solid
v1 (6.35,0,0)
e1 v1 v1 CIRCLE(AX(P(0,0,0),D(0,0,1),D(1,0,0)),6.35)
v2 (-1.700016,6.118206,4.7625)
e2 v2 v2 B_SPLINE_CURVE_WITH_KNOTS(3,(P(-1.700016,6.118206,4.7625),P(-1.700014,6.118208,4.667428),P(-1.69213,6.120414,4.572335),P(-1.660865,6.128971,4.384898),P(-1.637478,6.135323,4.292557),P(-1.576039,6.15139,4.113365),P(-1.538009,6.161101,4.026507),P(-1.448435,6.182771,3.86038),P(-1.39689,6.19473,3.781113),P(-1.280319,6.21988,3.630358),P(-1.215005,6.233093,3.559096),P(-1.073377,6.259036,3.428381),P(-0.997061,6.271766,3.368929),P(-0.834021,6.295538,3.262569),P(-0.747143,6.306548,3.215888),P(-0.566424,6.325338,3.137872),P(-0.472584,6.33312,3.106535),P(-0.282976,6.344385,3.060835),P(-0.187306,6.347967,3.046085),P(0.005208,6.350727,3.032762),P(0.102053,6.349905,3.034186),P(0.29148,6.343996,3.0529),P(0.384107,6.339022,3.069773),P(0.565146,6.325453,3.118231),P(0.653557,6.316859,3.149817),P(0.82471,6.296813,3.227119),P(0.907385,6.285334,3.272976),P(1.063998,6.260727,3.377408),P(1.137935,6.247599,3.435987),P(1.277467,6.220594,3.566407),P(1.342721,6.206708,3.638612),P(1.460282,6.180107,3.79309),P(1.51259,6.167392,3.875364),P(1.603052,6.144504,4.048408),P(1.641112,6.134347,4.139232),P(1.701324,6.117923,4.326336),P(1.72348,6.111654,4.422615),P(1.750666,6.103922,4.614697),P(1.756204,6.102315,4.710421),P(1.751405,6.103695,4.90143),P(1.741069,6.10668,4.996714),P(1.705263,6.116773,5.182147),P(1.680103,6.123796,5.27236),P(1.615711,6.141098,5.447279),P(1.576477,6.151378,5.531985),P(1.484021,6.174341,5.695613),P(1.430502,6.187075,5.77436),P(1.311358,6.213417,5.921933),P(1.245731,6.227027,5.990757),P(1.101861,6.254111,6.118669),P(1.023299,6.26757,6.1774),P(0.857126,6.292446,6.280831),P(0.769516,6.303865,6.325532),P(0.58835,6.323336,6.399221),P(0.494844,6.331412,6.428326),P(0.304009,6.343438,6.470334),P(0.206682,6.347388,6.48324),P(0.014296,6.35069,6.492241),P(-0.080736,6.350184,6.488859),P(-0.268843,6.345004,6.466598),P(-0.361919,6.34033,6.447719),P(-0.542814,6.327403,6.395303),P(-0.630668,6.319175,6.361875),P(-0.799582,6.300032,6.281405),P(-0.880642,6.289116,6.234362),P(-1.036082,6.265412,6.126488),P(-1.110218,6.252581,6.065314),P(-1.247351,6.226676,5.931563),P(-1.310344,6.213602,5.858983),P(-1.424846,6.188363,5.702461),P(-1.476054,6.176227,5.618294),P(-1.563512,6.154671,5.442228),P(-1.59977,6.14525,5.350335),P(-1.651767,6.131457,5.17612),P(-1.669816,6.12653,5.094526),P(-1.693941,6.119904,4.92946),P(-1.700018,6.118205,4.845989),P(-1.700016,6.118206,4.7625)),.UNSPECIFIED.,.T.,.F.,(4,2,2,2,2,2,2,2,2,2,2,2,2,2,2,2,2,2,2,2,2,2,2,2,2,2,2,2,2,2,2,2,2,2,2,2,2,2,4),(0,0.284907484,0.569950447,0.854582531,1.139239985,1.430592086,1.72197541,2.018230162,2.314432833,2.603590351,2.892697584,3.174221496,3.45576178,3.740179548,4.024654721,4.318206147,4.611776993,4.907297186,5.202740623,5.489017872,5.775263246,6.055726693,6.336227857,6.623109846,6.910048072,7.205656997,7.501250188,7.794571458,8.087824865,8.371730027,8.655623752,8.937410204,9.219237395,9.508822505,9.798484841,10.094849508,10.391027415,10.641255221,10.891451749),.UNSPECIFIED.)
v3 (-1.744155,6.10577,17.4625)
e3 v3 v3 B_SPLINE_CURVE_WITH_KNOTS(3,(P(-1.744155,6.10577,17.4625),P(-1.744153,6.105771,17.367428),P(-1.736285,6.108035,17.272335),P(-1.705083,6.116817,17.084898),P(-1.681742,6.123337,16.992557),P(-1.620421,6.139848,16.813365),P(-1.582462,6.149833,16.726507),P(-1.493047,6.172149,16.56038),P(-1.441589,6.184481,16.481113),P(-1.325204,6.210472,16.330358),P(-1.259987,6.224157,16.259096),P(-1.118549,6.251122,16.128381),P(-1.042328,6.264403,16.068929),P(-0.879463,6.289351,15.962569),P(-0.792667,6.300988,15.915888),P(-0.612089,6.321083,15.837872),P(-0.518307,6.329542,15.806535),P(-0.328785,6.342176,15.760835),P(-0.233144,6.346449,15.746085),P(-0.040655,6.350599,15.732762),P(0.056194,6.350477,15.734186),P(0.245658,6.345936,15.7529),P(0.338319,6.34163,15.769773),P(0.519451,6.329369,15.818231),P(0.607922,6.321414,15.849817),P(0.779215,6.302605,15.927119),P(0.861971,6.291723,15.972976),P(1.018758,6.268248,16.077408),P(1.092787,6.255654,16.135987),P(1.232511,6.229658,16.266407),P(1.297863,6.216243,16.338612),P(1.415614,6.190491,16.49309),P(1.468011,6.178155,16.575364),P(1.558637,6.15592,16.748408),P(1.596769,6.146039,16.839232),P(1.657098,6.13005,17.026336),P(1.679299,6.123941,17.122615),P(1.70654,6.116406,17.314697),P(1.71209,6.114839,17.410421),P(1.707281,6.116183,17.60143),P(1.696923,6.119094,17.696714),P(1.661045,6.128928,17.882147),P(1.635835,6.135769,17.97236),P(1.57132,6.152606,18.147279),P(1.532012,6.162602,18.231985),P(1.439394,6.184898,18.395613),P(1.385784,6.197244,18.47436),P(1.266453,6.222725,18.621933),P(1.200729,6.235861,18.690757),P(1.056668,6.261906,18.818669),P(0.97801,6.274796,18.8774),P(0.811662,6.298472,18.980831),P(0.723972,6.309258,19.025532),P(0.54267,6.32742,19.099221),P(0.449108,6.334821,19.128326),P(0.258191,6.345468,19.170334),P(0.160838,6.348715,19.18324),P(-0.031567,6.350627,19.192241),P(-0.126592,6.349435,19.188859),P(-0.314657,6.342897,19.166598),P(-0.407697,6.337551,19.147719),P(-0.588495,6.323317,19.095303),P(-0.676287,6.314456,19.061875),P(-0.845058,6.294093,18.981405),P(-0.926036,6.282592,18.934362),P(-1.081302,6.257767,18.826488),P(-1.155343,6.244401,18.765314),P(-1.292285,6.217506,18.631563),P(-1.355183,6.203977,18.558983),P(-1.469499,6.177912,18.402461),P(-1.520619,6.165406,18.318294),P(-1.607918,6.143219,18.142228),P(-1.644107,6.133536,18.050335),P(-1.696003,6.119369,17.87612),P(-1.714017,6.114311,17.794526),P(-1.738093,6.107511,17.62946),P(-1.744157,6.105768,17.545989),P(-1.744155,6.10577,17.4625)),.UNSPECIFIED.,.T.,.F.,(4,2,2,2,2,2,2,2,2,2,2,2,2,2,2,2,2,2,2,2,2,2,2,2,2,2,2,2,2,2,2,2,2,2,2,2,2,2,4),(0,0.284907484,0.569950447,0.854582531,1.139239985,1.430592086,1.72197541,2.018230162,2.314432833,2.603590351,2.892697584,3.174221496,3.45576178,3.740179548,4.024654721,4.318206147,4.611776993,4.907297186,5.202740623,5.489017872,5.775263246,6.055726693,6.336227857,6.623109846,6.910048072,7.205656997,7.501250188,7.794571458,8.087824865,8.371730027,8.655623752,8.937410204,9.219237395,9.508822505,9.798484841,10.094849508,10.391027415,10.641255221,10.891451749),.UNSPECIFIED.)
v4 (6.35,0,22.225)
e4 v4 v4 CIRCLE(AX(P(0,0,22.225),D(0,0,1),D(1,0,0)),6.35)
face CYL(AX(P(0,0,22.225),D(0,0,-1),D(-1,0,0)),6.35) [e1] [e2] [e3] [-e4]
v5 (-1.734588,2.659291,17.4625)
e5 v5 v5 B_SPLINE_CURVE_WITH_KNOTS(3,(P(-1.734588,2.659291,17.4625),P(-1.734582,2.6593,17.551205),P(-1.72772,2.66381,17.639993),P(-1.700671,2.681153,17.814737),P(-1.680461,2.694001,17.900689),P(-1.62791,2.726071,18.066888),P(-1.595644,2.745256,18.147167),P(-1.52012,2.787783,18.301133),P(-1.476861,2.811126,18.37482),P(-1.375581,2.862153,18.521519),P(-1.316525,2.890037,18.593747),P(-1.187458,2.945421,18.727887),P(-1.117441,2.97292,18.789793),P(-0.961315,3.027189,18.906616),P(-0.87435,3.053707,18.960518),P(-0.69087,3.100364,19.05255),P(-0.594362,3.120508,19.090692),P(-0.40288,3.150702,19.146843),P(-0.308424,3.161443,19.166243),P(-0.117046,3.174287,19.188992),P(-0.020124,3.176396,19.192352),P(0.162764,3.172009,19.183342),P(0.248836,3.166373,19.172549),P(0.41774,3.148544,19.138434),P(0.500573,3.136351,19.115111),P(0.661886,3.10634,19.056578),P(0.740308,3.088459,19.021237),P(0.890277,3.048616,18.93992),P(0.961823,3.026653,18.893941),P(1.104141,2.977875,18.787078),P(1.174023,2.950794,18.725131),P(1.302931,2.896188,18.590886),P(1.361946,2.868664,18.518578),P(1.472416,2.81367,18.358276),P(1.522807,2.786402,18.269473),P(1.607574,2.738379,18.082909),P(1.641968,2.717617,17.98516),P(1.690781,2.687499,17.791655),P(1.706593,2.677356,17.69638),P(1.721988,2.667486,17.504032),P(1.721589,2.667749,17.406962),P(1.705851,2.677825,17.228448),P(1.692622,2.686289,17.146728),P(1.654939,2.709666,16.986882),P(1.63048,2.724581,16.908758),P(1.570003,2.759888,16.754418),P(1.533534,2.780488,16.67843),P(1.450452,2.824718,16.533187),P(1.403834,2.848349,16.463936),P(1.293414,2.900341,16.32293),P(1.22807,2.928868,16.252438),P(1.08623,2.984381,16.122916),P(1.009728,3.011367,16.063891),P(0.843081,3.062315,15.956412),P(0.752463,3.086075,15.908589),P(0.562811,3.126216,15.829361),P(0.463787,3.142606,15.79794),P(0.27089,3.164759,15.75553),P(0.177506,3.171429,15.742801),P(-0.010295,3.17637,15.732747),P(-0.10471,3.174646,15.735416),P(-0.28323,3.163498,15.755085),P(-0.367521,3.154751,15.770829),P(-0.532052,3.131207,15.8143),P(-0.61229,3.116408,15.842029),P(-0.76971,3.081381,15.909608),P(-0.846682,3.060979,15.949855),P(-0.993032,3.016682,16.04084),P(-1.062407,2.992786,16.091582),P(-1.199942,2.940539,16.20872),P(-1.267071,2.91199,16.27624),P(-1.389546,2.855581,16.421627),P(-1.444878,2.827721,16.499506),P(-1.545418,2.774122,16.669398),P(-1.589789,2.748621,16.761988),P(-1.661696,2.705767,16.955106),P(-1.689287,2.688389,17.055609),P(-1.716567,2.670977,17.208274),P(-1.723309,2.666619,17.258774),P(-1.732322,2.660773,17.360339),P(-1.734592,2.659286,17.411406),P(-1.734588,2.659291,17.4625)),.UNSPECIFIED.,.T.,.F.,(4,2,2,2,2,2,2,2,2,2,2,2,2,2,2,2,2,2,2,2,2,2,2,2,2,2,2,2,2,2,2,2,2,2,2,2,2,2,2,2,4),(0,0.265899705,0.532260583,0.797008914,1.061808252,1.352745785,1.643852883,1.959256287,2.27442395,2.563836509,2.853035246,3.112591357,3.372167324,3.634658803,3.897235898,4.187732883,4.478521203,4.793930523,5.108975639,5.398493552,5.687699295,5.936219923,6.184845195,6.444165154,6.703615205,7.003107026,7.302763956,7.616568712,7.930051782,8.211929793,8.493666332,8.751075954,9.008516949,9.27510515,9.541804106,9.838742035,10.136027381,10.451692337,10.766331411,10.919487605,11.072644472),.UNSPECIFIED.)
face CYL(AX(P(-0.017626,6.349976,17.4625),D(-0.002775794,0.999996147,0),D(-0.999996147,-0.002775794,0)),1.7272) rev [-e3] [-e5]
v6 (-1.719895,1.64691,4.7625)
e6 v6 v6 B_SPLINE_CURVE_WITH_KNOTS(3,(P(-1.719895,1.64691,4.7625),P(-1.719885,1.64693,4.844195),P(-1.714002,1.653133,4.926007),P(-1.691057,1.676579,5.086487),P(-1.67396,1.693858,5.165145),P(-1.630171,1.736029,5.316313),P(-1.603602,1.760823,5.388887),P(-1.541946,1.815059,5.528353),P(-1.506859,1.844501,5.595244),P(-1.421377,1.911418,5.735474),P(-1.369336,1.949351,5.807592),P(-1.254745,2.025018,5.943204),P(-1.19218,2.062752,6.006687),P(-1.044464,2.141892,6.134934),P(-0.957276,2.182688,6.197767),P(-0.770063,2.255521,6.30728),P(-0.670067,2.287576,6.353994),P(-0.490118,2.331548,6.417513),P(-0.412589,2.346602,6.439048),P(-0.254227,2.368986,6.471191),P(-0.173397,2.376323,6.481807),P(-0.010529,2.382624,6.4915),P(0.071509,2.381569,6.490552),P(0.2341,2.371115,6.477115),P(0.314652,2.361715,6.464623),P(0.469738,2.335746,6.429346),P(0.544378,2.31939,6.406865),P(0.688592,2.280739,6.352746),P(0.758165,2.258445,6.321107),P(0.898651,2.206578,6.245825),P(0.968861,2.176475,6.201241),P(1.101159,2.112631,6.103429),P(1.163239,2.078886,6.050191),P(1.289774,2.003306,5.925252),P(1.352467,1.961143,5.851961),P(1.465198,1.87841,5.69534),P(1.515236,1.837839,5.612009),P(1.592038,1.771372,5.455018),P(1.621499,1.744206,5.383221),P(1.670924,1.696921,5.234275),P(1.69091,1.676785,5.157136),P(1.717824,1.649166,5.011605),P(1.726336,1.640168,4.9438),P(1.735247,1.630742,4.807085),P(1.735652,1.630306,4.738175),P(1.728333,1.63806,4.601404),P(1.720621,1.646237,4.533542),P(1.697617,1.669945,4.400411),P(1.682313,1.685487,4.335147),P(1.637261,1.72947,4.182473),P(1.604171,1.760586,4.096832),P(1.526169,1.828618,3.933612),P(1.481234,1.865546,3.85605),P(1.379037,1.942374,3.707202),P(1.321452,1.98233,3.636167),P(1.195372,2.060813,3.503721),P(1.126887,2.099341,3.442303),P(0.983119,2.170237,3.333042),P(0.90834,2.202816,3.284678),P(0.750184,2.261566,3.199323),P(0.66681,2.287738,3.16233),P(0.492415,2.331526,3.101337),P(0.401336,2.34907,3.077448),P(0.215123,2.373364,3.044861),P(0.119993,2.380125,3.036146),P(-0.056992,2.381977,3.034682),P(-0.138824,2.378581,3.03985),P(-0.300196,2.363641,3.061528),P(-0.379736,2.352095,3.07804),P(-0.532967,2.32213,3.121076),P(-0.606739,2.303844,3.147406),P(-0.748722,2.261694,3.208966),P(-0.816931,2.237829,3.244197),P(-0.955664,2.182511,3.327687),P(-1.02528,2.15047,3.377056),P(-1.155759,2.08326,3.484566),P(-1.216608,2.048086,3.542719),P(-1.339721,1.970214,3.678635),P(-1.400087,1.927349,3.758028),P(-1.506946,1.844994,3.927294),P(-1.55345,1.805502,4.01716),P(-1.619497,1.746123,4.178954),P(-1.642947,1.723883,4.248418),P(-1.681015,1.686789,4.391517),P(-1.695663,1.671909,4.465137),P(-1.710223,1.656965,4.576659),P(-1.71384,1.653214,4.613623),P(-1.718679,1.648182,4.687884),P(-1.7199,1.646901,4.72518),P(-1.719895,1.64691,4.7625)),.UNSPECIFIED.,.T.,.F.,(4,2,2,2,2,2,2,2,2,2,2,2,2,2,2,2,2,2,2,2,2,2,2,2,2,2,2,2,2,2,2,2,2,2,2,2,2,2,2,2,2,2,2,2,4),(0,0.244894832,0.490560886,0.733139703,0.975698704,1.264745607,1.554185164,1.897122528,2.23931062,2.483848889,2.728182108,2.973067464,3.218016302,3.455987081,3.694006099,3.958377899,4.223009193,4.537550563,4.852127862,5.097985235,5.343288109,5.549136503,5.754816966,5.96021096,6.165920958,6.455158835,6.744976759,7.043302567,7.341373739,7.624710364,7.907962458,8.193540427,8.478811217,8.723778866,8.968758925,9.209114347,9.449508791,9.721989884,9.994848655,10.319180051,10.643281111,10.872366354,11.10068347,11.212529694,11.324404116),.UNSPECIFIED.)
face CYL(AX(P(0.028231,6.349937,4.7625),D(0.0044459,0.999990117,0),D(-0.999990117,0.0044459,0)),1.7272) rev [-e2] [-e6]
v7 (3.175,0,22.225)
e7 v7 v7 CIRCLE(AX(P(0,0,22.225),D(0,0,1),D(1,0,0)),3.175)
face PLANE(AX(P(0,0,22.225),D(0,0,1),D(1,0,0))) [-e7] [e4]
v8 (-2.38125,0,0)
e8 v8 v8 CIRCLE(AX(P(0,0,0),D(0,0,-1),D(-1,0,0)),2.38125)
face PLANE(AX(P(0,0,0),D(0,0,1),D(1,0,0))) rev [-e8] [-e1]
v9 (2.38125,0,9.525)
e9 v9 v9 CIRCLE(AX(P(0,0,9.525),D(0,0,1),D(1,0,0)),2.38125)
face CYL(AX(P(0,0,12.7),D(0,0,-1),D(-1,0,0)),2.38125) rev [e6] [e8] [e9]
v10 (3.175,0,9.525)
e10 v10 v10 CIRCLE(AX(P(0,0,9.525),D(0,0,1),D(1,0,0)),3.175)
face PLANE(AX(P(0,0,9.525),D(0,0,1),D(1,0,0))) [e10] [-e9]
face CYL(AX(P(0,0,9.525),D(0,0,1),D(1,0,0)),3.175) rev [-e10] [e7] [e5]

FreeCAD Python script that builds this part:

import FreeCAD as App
import Part
import Sketcher
Q = App.Units.Quantity

doc = App.newDocument("Part")
body = doc.addObject("PartDesign::Body", "Body")

sketch1 = doc.addObject("Sketcher::SketchObject", "Sketch")
body.addObject(sketch1)
sketch1.AttachmentSupport = (doc.XY_Plane, [""])
sketch1.MapMode = "FlatFace"
sketch1.addGeometry(Part.Circle(App.Vector(0, 0, 0), App.Vector(0, 0, 1), 6.35), False)
sketch1.addConstraint([
    Sketcher.Constraint("Coincident", 0, 3, -1, 1),
    Sketcher.Constraint("Diameter", 0, Q("0.5 in")),
])
pad1 = doc.addObject("PartDesign::Pad", "Pad")
body.addObject(pad1)
pad1.Profile = sketch1
pad1.Length = Q("0.875 in")

sketch2 = doc.addObject("Sketcher::SketchObject", "Sketch001")
body.addObject(sketch2)
sketch2.AttachmentSupport = (doc.XY_Plane, [""])
sketch2.MapMode = "FlatFace"
sketch2.AttachmentOffset = App.Placement(App.Vector(0, 0, 0.875 * 25.4), App.Rotation())
sketch2.addGeometry(Part.Circle(App.Vector(0, 0, 0), App.Vector(0, 0, 1), 3.175), False)
sketch2.addConstraint([
    Sketcher.Constraint("Coincident", 0, 3, -1, 1),
    Sketcher.Constraint("Diameter", 0, Q("0.25 in")),
])
pocket1 = doc.addObject("PartDesign::Pocket", "Pocket")
body.addObject(pocket1)
pocket1.Profile = sketch2
pocket1.Length = Q("0.5 in")

sketch3 = doc.addObject("Sketcher::SketchObject", "Sketch002")
body.addObject(sketch3)
sketch3.AttachmentSupport = (doc.XY_Plane, [""])
sketch3.MapMode = "FlatFace"
sketch3.addGeometry(Part.Circle(App.Vector(0, 0, 0), App.Vector(0, 0, 1), 2.38125), False)
sketch3.addConstraint([
    Sketcher.Constraint("Coincident", 0, 3, -1, 1),
    Sketcher.Constraint("Diameter", 0, Q("0.1875 in")),
])
pocket2 = doc.addObject("PartDesign::Pocket", "Pocket001")
body.addObject(pocket2)
pocket2.Profile = sketch3
pocket2.Length = Q("0.5 in")
pocket2.Reversed = True

sketch4 = doc.addObject("Sketcher::SketchObject", "Sketch003")
body.addObject(sketch4)
sketch4.Placement = App.Placement(App.Vector(-0.017626, 6.349976, 17.4625), App.Rotation(App.Vector(0.999996147, 0.002775794, 0), App.Vector(0, 0, -0.999999999), App.Vector(-0.002775794, 0.999996147, 0), "ZXY"))
sketch4.addGeometry(Part.Circle(App.Vector(0, 0, 0), App.Vector(0, 0, 1), 1.7272), False)
sketch4.addConstraint([
    Sketcher.Constraint("Coincident", 0, 3, -1, 1),
    Sketcher.Constraint("Diameter", 0, Q("0.136 in")),
])
pocket3 = doc.addObject("PartDesign::Pocket", "Pocket002")
body.addObject(pocket3)
pocket3.Profile = sketch4
pocket3.Type = "UpToFirst"

sketch5 = doc.addObject("Sketcher::SketchObject", "Sketch004")
body.addObject(sketch5)
sketch5.Placement = App.Placement(App.Vector(0.028231, 6.349937, 4.7625), App.Rotation(App.Vector(0.999990116, -0.004446001, 0), App.Vector(0, 0, -0.999999999), App.Vector(0.004446001, 0.999990116, 0), "ZXY"))
sketch5.addGeometry(Part.Circle(App.Vector(0, 0, 0), App.Vector(0, 0, 1), 1.7272), False)
sketch5.addConstraint([
    Sketcher.Constraint("Coincident", 0, 3, -1, 1),
    Sketcher.Constraint("Diameter", 0, Q("0.136 in")),
])
pocket4 = doc.addObject("PartDesign::Pocket", "Pocket003")
body.addObject(pocket4)
pocket4.Profile = sketch5
pocket4.Type = "UpToFirst"

doc.recompute()
